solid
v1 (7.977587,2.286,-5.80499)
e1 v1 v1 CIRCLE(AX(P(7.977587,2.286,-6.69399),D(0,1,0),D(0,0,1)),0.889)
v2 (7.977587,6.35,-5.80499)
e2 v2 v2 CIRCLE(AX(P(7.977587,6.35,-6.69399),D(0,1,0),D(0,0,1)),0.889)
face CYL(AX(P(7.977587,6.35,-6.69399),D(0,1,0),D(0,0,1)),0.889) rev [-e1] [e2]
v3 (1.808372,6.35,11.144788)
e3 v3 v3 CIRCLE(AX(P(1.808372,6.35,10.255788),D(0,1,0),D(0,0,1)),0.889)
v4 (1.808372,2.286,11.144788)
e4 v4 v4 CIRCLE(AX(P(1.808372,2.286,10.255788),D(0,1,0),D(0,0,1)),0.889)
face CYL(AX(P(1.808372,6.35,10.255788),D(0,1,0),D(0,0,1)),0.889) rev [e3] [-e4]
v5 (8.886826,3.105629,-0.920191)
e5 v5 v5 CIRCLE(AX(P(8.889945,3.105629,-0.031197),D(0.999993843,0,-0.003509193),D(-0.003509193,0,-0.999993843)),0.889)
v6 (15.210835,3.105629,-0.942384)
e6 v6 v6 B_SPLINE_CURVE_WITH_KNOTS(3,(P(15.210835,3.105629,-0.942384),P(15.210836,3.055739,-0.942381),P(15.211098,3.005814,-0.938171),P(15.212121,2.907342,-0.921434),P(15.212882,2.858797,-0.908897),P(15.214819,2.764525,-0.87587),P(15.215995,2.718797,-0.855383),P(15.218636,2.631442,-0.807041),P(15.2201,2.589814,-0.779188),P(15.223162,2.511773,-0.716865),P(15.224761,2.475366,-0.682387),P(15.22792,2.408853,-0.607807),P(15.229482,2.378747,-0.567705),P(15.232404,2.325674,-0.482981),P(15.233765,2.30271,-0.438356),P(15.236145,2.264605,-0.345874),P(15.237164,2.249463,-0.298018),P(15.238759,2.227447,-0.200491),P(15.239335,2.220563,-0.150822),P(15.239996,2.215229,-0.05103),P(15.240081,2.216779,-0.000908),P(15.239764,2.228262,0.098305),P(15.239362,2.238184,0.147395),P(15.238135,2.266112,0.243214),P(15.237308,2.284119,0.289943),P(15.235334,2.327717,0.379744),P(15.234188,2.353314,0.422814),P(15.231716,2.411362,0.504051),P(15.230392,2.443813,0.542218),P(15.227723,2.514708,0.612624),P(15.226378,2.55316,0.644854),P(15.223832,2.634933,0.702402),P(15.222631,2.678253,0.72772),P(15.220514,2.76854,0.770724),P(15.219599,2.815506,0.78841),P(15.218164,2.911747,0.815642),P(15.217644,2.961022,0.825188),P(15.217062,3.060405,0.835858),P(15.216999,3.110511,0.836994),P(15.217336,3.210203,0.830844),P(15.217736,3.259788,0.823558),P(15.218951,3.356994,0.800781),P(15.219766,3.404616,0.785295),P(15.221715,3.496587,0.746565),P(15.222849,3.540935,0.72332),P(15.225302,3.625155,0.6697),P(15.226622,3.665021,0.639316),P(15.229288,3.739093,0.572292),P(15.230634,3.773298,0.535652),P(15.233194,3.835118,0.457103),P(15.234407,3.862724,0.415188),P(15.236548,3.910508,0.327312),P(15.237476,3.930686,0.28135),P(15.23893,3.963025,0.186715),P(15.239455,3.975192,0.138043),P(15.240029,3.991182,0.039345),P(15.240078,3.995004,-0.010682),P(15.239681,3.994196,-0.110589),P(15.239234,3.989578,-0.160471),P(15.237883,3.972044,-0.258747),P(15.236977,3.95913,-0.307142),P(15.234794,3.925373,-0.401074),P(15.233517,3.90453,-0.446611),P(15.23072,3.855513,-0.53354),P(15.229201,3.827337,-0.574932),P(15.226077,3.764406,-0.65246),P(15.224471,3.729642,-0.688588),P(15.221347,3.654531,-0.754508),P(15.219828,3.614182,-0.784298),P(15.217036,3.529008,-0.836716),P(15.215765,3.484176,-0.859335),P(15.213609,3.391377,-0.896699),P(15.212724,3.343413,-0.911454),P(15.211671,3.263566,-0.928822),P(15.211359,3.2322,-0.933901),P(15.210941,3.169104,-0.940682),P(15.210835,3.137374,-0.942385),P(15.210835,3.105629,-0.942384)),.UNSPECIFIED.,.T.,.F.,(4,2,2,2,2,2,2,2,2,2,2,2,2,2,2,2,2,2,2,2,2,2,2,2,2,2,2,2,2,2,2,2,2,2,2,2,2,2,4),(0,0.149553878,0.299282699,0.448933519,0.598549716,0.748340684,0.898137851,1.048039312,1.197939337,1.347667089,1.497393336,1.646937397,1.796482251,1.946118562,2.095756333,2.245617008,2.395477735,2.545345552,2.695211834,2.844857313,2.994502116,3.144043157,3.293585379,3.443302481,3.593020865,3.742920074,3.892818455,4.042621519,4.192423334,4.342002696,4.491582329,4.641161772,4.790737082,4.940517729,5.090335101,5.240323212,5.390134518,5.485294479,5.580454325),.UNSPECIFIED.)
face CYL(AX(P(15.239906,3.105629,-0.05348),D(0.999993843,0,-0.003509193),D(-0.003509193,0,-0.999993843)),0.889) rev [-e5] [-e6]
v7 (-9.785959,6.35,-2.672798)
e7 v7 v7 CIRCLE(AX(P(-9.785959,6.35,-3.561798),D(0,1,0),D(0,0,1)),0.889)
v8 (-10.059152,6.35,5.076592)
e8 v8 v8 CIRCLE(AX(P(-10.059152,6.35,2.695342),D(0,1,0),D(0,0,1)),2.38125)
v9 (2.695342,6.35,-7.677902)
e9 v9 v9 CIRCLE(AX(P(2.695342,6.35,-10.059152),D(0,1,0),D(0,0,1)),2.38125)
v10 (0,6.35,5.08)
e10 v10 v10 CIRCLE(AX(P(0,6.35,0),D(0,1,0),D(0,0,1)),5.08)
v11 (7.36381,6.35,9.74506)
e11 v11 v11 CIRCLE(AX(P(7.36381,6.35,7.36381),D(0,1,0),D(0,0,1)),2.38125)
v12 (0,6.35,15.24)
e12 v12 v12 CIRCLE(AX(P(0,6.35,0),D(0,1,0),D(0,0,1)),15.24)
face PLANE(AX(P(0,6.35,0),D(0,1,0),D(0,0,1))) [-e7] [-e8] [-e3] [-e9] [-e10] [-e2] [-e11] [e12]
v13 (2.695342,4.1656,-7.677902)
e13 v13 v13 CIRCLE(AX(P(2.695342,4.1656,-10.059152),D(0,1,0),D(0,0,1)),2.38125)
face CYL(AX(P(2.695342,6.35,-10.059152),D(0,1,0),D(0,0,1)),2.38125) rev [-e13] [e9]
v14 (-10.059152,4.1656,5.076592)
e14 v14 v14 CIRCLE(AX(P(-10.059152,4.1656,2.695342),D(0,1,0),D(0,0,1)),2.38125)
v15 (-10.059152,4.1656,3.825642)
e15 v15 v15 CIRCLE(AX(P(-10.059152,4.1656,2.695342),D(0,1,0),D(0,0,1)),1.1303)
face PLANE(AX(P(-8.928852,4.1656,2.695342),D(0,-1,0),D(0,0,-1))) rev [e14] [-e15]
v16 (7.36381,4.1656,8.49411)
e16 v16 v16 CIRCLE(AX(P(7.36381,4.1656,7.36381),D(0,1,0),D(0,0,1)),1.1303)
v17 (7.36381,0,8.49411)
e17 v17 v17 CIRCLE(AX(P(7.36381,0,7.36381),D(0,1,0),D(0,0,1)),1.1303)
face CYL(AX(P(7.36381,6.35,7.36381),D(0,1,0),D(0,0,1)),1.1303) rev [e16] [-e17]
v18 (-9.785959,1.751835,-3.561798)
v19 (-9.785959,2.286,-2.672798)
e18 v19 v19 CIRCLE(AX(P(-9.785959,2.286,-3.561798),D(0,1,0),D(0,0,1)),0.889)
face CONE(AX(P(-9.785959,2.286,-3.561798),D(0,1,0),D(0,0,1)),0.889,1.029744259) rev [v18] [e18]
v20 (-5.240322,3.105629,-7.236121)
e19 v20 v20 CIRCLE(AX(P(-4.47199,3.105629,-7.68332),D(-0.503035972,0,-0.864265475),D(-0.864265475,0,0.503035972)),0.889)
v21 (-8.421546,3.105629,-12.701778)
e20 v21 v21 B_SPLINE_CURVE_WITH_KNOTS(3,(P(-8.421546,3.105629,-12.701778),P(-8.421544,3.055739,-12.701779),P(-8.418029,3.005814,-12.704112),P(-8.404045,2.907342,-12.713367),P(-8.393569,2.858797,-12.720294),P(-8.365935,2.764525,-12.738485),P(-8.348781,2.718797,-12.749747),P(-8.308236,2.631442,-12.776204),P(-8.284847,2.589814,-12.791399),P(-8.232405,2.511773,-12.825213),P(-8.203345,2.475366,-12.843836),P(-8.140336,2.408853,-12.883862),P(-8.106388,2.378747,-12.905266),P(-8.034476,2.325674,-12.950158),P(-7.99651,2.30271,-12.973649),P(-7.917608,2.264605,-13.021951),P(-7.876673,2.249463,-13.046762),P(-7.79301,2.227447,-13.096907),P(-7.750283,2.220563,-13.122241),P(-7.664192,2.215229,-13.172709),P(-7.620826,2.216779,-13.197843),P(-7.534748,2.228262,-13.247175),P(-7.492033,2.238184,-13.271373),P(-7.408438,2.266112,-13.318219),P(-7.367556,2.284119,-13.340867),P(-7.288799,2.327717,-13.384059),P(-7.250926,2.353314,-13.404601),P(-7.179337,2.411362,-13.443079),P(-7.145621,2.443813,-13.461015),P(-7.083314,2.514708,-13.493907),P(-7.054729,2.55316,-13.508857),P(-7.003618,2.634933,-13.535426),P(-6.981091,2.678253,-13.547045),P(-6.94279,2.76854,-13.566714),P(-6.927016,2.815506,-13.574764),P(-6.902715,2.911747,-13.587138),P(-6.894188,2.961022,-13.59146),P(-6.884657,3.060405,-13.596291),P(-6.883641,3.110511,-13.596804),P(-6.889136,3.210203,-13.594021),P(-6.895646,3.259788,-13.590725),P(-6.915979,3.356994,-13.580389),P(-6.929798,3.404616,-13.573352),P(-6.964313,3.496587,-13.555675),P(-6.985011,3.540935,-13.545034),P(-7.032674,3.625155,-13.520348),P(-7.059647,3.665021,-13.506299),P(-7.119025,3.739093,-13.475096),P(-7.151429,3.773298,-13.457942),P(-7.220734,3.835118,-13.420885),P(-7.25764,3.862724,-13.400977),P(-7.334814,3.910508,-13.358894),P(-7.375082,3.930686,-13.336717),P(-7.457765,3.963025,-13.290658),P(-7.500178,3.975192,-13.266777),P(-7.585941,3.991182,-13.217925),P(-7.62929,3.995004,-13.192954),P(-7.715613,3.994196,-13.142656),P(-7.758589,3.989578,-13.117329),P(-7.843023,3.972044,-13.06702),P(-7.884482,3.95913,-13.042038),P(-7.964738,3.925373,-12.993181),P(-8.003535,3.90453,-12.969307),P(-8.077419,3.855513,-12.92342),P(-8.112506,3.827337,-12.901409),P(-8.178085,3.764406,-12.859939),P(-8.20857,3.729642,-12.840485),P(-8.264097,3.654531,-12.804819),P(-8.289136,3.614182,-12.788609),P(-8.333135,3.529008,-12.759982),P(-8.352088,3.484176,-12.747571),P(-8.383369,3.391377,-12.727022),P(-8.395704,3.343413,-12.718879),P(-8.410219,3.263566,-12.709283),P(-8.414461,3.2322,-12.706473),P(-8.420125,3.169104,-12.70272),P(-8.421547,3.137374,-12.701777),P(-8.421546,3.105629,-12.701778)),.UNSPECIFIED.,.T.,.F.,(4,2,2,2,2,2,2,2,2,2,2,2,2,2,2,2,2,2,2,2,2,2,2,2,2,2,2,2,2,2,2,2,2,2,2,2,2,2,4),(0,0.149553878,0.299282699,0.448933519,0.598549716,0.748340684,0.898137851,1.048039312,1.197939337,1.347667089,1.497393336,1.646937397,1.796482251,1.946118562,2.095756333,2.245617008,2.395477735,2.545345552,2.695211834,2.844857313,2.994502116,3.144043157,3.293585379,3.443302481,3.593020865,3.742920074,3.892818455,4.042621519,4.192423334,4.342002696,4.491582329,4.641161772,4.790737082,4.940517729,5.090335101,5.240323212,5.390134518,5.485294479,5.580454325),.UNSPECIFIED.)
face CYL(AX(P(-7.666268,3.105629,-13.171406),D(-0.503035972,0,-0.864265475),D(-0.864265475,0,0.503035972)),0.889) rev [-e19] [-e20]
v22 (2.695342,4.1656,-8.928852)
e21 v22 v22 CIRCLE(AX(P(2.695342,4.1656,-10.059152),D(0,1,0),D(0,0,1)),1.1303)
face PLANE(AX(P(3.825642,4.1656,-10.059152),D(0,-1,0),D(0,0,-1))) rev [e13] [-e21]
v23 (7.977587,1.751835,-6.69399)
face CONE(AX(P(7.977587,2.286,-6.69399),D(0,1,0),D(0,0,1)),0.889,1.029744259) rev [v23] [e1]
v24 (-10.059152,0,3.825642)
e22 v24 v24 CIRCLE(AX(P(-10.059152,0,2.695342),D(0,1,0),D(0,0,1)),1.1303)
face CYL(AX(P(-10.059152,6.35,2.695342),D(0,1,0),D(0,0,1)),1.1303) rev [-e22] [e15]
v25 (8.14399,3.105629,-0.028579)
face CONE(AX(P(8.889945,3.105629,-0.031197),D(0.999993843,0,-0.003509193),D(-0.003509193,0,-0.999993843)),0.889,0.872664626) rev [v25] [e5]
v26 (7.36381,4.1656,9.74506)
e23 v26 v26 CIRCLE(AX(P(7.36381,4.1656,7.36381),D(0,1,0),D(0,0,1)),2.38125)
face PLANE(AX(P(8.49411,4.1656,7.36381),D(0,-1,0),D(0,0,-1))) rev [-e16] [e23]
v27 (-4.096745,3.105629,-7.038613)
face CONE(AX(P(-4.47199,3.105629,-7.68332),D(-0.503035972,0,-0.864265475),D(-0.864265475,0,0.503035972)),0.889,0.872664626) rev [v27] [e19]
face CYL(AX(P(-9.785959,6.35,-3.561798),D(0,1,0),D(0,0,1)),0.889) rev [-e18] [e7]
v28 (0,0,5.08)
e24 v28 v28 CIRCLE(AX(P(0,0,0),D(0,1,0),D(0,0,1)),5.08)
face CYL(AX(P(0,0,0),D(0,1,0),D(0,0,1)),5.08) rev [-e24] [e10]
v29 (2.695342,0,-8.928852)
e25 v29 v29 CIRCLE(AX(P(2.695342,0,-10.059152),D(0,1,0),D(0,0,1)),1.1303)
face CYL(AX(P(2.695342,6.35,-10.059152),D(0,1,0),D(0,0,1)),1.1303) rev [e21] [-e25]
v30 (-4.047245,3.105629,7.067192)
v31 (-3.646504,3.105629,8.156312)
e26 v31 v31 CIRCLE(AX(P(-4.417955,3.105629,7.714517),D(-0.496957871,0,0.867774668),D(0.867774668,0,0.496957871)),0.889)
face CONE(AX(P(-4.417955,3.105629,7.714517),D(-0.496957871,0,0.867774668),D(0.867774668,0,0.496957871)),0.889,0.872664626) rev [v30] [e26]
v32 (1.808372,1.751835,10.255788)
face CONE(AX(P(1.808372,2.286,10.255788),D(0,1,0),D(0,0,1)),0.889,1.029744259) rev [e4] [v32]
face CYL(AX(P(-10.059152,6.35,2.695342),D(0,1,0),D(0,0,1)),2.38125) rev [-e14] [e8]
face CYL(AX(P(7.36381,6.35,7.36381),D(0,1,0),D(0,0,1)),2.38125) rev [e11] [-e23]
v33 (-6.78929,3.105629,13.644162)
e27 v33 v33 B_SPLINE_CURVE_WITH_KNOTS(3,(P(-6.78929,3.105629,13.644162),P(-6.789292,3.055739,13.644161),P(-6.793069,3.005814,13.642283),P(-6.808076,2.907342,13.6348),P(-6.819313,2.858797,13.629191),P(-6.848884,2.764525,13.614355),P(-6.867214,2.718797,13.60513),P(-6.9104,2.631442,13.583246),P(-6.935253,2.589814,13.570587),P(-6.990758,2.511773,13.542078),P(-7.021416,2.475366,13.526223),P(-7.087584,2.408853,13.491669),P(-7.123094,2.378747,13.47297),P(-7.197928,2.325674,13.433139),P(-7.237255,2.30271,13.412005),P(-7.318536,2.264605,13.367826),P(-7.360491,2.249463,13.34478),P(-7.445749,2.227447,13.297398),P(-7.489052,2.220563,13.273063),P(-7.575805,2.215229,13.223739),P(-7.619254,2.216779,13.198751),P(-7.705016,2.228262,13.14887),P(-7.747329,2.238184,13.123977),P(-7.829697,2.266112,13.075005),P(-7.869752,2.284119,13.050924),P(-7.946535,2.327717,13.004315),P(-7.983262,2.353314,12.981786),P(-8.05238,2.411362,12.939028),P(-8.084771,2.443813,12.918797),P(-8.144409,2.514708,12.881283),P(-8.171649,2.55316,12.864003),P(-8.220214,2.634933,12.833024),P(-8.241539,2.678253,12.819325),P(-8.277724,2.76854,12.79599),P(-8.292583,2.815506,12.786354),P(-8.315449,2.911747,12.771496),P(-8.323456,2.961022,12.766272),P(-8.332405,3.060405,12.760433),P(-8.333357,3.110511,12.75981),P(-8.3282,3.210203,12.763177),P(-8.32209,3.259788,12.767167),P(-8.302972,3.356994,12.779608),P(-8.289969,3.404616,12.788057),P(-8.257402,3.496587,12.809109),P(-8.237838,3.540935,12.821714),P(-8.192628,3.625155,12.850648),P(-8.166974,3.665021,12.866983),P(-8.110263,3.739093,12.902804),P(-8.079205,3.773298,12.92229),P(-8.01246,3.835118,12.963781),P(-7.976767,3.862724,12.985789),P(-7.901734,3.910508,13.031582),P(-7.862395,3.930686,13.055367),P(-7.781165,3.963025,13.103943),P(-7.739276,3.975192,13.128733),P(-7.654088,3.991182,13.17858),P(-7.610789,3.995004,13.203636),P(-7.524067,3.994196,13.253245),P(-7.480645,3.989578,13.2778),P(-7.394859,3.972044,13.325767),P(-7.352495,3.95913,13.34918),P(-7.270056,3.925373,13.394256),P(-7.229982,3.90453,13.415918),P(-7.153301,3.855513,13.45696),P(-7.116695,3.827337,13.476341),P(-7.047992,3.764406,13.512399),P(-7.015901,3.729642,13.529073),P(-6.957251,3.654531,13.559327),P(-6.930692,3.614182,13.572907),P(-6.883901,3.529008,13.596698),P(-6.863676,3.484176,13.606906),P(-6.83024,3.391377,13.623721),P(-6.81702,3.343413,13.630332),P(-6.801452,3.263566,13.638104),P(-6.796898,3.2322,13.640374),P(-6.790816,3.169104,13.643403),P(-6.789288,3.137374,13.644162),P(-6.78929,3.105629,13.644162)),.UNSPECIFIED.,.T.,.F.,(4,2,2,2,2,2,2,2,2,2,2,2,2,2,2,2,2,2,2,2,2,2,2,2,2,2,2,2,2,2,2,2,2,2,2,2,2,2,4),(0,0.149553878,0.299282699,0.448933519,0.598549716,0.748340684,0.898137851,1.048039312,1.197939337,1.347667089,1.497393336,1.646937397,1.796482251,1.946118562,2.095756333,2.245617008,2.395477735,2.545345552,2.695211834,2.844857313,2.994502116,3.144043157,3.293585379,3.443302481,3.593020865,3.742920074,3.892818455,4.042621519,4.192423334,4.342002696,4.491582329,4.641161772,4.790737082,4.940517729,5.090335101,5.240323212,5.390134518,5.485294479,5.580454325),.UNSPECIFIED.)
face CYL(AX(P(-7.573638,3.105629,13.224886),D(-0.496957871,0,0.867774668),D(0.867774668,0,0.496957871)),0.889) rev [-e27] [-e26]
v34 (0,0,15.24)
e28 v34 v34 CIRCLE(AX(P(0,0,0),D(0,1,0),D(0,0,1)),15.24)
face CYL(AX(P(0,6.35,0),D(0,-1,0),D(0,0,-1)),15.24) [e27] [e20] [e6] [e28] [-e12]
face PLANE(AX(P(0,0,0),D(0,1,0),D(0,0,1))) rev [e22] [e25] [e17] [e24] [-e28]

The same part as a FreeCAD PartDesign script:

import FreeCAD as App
import Part
import Sketcher
from FreeCAD import Vector
Q = App.Units.Quantity


def add_polygon(sketch, points):
    """Adds a closed chain of lines whose ends are joined by coincident constraints."""
    first, n = sketch.GeometryCount, len(points)
    for a, b in zip(points, points[1:] + points[:1]):
        sketch.addGeometry(Part.LineSegment(App.Vector(*a, 0), App.Vector(*b, 0)), False)
    for i in range(n):
        sketch.addConstraint(Sketcher.Constraint("Coincident", first + i, 2, first + (i + 1) % n, 1))

doc = App.newDocument("Part")
body = doc.addObject("PartDesign::Body", "Body")

sketch1 = body.newObject("Sketcher::SketchObject", "Sketch")
sketch1.AttachmentSupport = (doc.getObject("XZ_Plane"), [""])
sketch1.MapMode = "FlatFace"
sketch1.addGeometry(Part.Circle(Vector(0, 0, 0), Vector(0, 0, 1), 15), False)
sketch1.addConstraint([
    Sketcher.Constraint("Coincident", 0, 3, -1, 1),
    Sketcher.Constraint("Diameter", 0, Q("1.2 in")),
])
pad1 = body.newObject("PartDesign::Pad", "Pad")
pad1.Profile = sketch1
pad1.Length = Q("0.25 in")
pad1.Reversed = True

sketch2 = body.newObject("Sketcher::SketchObject", "Sketch001")
sketch2.AttachmentSupport = (doc.getObject("XZ_Plane"), [""])
sketch2.MapMode = "FlatFace"
sketch2.AttachmentOffset = App.Placement(Vector(0, 0, -0.25 * 25.4), App.Rotation())
sketch2.addGeometry(Part.Circle(Vector(7.4, 7.4, 0), Vector(0, 0, 1), 1.1), False)
sketch2.addConstraint([
    Sketcher.Constraint("Diameter", 0, Q("0.089 in")),
    Sketcher.Constraint("DistanceX", -1, 1, 0, 3, Q("7.36381 mm")),
    Sketcher.Constraint("DistanceY", -1, 1, 0, 3, Q("7.36381 mm")),
])
doc.recompute()
hole = body.newObject("PartDesign::Hole", "Hole")
hole.Profile = sketch2
hole.ThreadType = "None"
hole.Diameter = Q("0.089 in")
hole.DepthType = "ThroughAll"
hole.HoleCutType = "Counterbore"
hole.HoleCutDiameter = Q("0.1875 in")
hole.HoleCutDepth = Q("0.086 in")
hole.Reversed = True
doc.recompute()

polarpattern = body.newObject("PartDesign::PolarPattern", "PolarPattern")
polarpattern.Originals = [hole]
polarpattern.Axis = (doc.getObject("Y_Axis"), [""])
polarpattern.Angle = 360
polarpattern.Occurrences = 3
body.Tip = polarpattern

sketch3 = body.newObject("Sketcher::SketchObject", "Sketch002")
sketch3.AttachmentSupport = (doc.getObject("YZ_Plane"), [""])
sketch3.MapMode = "FlatFace"
sketch3.AttachmentOffset = App.Placement(Vector(0, 0, 7.977587), App.Rotation())
add_polygon(sketch3, [(1.8, -6.7), (6.3, -6.7), (6.3, -5.8), (2.3, -5.8)])
sketch3.addGeometry(Part.LineSegment(Vector(6.3, -6.7, 0), Vector(1.8, -6.7, 0)), True)
sketch3.addConstraint([
    Sketcher.Constraint("Horizontal", 0),
    Sketcher.Constraint("Vertical", 1),
    Sketcher.Constraint("Horizontal", 2),
    Sketcher.Constraint("Horizontal", 4),
    Sketcher.Constraint("Coincident", 4, 1, 0, 2),
    Sketcher.Constraint("Equal", 0, 4),
    Sketcher.Constraint("Angle", 3, Q("-121 deg")),
    Sketcher.Constraint("DistanceX", 2, 2, 2, 1, Q("0.16 in")),
    Sketcher.Constraint("DistanceY", 1, 1, 1, 2, Q("0.035 in")),
    Sketcher.Constraint("DistanceX", -1, 1, 0, 2, Q("0.25 in")),
    Sketcher.Constraint("DistanceY", 0, 2, -1, 1, Q("6.69399 mm")),
])
groove = body.newObject("PartDesign::Groove", "Groove")
groove.Profile = sketch3
groove.ReferenceAxis = (sketch3, ["Axis0"])
groove.Angle = 360
doc.recompute()

polarpattern2 = body.newObject("PartDesign::PolarPattern", "PolarPattern001")
polarpattern2.Originals = [groove]
polarpattern2.Axis = (doc.getObject("Y_Axis"), [""])
polarpattern2.Angle = 360
polarpattern2.Occurrences = 3
body.Tip = polarpattern2

sketch4 = body.newObject("Sketcher::SketchObject", "Sketch003")
sketch4.AttachmentSupport = (doc.getObject("XZ_Plane"), [""])
sketch4.MapMode = "FlatFace"
sketch4.AttachmentOffset = App.Placement(Vector(0, 0, -3.105629), App.Rotation())
add_polygon(sketch4, [(-4, 7.1), (-7.6, 13.2), (-6.8, 13.7), (-3.6, 8.2)])
sketch4.addGeometry(Part.LineSegment(Vector(-7.6, 13.2, 0), Vector(-4, 7.1, 0)), True)
sketch4.addConstraint([
    Sketcher.Constraint("Coincident", 4, 1, 0, 2),
    Sketcher.Constraint("Coincident", 4, 2, 3, 2),
    Sketcher.Constraint("Perpendicular", 0, 1),
    Sketcher.Constraint("Perpendicular", 1, 2),
    Sketcher.Constraint("Distance", 2, Q("0.25 in")),
    Sketcher.Constraint("Distance", 1, Q("0.035 in")),
    Sketcher.Constraint("Distance", 0, Q("7.09596 mm")),
    Sketcher.Constraint("DistanceY", -1, 1, 1, 2, Q("13.666681 mm")),
    Sketcher.Constraint("DistanceY", -1, 1, 3, 2, Q("7.067192 mm")),
    Sketcher.Constraint("DistanceX", 0, 2, -1, 1, Q("7.573638 mm")),
])
groove2 = body.newObject("PartDesign::Groove", "Groove001")
groove2.Profile = sketch4
groove2.ReferenceAxis = (sketch4, ["Axis0"])
groove2.Angle = 360
doc.recompute()

polarpattern3 = body.newObject("PartDesign::PolarPattern", "PolarPattern002")
polarpattern3.Originals = [groove2]
polarpattern3.Axis = (doc.getObject("Y_Axis"), [""])
polarpattern3.Angle = 360
polarpattern3.Occurrences = 3
body.Tip = polarpattern3

sketch5 = body.newObject("Sketcher::SketchObject", "Sketch004")
sketch5.AttachmentSupport = (doc.getObject("XZ_Plane"), [""])
sketch5.MapMode = "FlatFace"
sketch5.AttachmentOffset = App.Placement(Vector(0, 0, -0.25 * 25.4), App.Rotation())
sketch5.addGeometry(Part.Circle(Vector(0, 0, 0), Vector(0, 0, 1), 5), False)
sketch5.addConstraint([
    Sketcher.Constraint("Coincident", 0, 3, -1, 1),
    Sketcher.Constraint("Diameter", 0, Q("0.4 in")),
])
pocket1 = body.newObject("PartDesign::Pocket", "Pocket")
pocket1.Profile = sketch5
pocket1.Length = Q("0.25 in")
pocket1.Reversed = True

doc.recompute()
